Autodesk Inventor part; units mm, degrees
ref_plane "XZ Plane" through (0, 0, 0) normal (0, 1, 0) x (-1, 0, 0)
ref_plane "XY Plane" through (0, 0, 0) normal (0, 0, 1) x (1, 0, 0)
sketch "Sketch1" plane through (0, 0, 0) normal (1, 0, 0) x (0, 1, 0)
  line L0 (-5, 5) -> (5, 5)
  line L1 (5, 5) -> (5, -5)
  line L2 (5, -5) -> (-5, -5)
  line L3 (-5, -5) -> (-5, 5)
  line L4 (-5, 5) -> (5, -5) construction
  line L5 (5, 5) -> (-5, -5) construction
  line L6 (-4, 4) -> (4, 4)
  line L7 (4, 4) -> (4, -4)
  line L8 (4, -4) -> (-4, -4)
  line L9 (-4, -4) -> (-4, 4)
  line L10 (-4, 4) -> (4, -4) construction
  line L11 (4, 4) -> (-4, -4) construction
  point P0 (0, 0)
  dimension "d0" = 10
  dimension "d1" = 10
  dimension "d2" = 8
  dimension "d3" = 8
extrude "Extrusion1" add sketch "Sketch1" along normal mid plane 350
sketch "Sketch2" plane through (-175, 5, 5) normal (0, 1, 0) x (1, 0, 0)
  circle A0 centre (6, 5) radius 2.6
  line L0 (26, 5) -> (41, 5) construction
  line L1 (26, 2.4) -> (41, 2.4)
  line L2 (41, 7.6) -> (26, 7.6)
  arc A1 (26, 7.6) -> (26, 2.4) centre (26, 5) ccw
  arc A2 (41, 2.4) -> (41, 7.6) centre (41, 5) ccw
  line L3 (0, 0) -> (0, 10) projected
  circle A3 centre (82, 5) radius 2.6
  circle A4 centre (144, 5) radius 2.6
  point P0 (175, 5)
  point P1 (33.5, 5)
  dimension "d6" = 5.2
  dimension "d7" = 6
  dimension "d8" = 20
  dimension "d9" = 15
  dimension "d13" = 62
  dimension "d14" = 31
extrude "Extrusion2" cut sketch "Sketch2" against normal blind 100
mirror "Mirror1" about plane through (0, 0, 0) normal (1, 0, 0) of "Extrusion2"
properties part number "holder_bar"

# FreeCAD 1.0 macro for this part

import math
import FreeCAD as App
import Part
import Sketcher


def add_polygon(sketch, points):
    """Adds a closed chain of lines whose ends are joined by coincident constraints."""
    first, n = sketch.GeometryCount, len(points)
    for a, b in zip(points, points[1:] + points[:1]):
        sketch.addGeometry(Part.LineSegment(App.Vector(*a, 0), App.Vector(*b, 0)), False)
    for i in range(n):
        sketch.addConstraint(Sketcher.Constraint("Coincident", first + i, 2, first + (i + 1) % n, 1))

doc = App.newDocument("Part")
body = doc.addObject("PartDesign::Body", "Body")

sketch1 = body.newObject("Sketcher::SketchObject", "Sketch")
sketch1.AttachmentSupport = (doc.getObject("YZ_Plane"), [""])
sketch1.MapMode = "FlatFace"
add_polygon(sketch1, [(5, 5), (-5, 5), (-5, -5), (5, -5)])
add_polygon(sketch1, [(-4, -4), (-4, 4), (4, 4), (4, -4)])
sketch1.addConstraint([
    Sketcher.Constraint("Horizontal", 0),
    Sketcher.Constraint("Vertical", 1),
    Sketcher.Constraint("Horizontal", 2),
    Sketcher.Constraint("Vertical", 3),
    Sketcher.Constraint("Vertical", 4),
    Sketcher.Constraint("Horizontal", 5),
    Sketcher.Constraint("Vertical", 6),
    Sketcher.Constraint("Horizontal", 7),
    Sketcher.Constraint("Symmetric", 0, 2, 2, 2, -1, 1),
    Sketcher.Constraint("Symmetric", 4, 2, 6, 2, -1, 1),
    Sketcher.Constraint("Equal", 2, 1),
    Sketcher.Constraint("Equal", 7, 4),
    Sketcher.Constraint("DistanceX", 0, 2, 0, 1, 10.0),
    Sketcher.Constraint("DistanceX", 5, 1, 5, 2, 8.0),
])
pad1 = body.newObject("PartDesign::Pad", "Pad")
pad1.Profile = sketch1
pad1.Length = 350
pad1.Midplane = True

sketch2 = body.newObject("Sketcher::SketchObject", "Sketch001")
sketch2.AttachmentSupport = (doc.getObject("XZ_Plane"), [""])
sketch2.MapMode = "FlatFace"
sketch2.AttachmentOffset = App.Placement(App.Vector(0, 0, -5), App.Rotation())
sketch2.addGeometry([
    Part.Circle(App.Vector(-169, 0, 0), App.Vector(0, 0, 1), 2.6),
    Part.ArcOfCircle(Part.Circle(App.Vector(-149, 0, 0), App.Vector(0, 0, 1), 2.6), math.radians(90), math.radians(270)),
    Part.LineSegment(App.Vector(-149, 2.6, 0), App.Vector(-134, 2.6, 0)),
    Part.ArcOfCircle(Part.Circle(App.Vector(-134, 0, 0), App.Vector(0, 0, 1), 2.6), math.radians(-90), math.radians(90)),
    Part.LineSegment(App.Vector(-134, -2.6, 0), App.Vector(-149, -2.6, 0)),
    Part.Circle(App.Vector(-93, 0, 0), App.Vector(0, 0, 1), 2.6),
    Part.Circle(App.Vector(-31, 0, 0), App.Vector(0, 0, 1), 2.6),
], False)
sketch2.addConstraint([
    Sketcher.Constraint("Tangent", 1, 1, 2, 1),
    Sketcher.Constraint("Tangent", 2, 2, 3, 2),
    Sketcher.Constraint("Tangent", 3, 1, 4, 1),
    Sketcher.Constraint("Tangent", 4, 2, 1, 2),
    Sketcher.Constraint("Horizontal", 2),
    Sketcher.Constraint("Horizontal", 4),
    Sketcher.Constraint("Equal", 0, 1),
    Sketcher.Constraint("Equal", 3, 5),
    Sketcher.Constraint("Equal", 5, 6),
    Sketcher.Constraint("PointOnObject", 0, 3, -1),
    Sketcher.Constraint("PointOnObject", 1, 3, -1),
    Sketcher.Constraint("PointOnObject", 5, 3, -1),
    Sketcher.Constraint("PointOnObject", 6, 3, -1),
    Sketcher.Constraint("Diameter", 0, 5.2),
    Sketcher.Constraint("DistanceX", 2, 1, 2, 2, 15.0),
    Sketcher.Constraint("DistanceX", 6, 3, -1, 1, 31.0),
    Sketcher.Constraint("DistanceX", 0, 3, 1, 3, 20.0),
    Sketcher.Constraint("DistanceX", 5, 3, 6, 3, 62.0),
    Sketcher.Constraint("DistanceX", 0, 3, -1, 1, 169.0),
])
pocket1 = body.newObject("PartDesign::Pocket", "Pocket")
pocket1.Profile = sketch2
pocket1.Length = 100
pocket1.Reversed = True
doc.recompute()

mirrored = body.newObject("PartDesign::Mirrored", "Mirrored")
mirrored.Originals = [pocket1]
mirrored.MirrorPlane = (doc.getObject("YZ_Plane"), [""])
body.Tip = mirrored

doc.recompute()
